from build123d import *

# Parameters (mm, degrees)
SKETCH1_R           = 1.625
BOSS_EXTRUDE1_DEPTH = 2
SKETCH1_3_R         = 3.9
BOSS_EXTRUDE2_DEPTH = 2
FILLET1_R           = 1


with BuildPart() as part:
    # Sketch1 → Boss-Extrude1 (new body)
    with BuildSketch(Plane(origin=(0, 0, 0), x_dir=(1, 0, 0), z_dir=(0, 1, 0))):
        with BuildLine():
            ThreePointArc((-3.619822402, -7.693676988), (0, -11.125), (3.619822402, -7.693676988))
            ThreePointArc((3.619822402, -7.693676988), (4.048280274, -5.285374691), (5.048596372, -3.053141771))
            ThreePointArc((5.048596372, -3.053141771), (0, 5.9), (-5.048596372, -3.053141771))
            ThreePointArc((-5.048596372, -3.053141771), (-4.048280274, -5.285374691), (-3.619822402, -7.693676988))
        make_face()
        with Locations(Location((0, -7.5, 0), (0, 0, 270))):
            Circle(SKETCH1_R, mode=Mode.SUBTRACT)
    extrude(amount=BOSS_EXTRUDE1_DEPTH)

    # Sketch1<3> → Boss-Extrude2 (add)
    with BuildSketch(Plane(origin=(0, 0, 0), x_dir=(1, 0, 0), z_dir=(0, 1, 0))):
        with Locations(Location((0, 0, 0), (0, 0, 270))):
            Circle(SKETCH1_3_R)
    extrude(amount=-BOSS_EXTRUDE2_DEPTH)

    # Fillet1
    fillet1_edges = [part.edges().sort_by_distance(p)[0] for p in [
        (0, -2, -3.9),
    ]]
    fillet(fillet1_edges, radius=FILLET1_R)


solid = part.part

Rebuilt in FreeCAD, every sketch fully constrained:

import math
import FreeCAD as App
import Part
import Sketcher


def edges_at(feature, points):
    """Names of the edges that pass closest to the given points."""
    edges = feature.Shape.Edges
    near = lambda p: min(range(len(edges)), key=lambda i: edges[i].distToShape(Part.Vertex(*p))[0])
    return sorted({f"Edge{near(p) + 1}" for p in points})

doc = App.newDocument("Part")
body = doc.addObject("PartDesign::Body", "Body")

sketch1 = body.newObject("Sketcher::SketchObject", "Sketch")
sketch1.AttachmentSupport = (doc.getObject("XZ_Plane"), [""])
sketch1.MapMode = "FlatFace"
sketch1.addGeometry([
    Part.ArcOfCircle(Part.Circle(App.Vector(0, 7.5, 0), App.Vector(0, 0, 1), 3.625), math.radians(3.062665), math.radians(176.937335)),
    Part.ArcOfCircle(Part.Circle(App.Vector(13.605539, 8.227958, 0), App.Vector(0, 0, 1), 10), math.radians(-176.937335), math.radians(-148.836523)),
    Part.ArcOfCircle(Part.Circle(App.Vector(0, 0, 0), App.Vector(0, 0, 1), 5.9), math.radians(148.836523), math.radians(391.163477)),
    Part.ArcOfCircle(Part.Circle(App.Vector(-13.605539, 8.227958, 0), App.Vector(0, 0, 1), 10), math.radians(-31.163477), math.radians(-3.062665)),
    Part.Circle(App.Vector(0, 7.5, 0), App.Vector(0, 0, 1), 1.625),
], False)
sketch1.addConstraint([
    Sketcher.Constraint("Tangent", 0, 1, 1, 1),
    Sketcher.Constraint("Tangent", 1, 2, 2, 2),
    Sketcher.Constraint("Tangent", 2, 1, 3, 1),
    Sketcher.Constraint("Tangent", 3, 2, 0, 2),
    Sketcher.Constraint("Coincident", 2, 3, -1, 1),
    Sketcher.Constraint("Coincident", 4, 3, 0, 3),
    Sketcher.Constraint("Equal", 1, 3),
    Sketcher.Constraint("PointOnObject", 0, 3, -2),
    Sketcher.Constraint("Radius", 1, 10.0),
    Sketcher.Constraint("Radius", 2, 5.9),
    Sketcher.Constraint("Diameter", 4, 3.25),
    Sketcher.Constraint("Radius", 0, 3.625),
    Sketcher.Constraint("DistanceY", -1, 1, 0, 3, 7.5),
])
pad1 = body.newObject("PartDesign::Pad", "Pad")
pad1.Profile = sketch1
pad1.Length = 2
pad1.Reversed = True

sketch2 = body.newObject("Sketcher::SketchObject", "Sketch001")
sketch2.AttachmentSupport = (doc.getObject("XZ_Plane"), [""])
sketch2.MapMode = "FlatFace"
sketch2.addGeometry(Part.Circle(App.Vector(0, 0, 0), App.Vector(0, 0, 1), 3.9), False)
sketch2.addConstraint([
    Sketcher.Constraint("Coincident", 0, 3, -1, 1),
    Sketcher.Constraint("Diameter", 0, 7.8),
])
pad2 = body.newObject("PartDesign::Pad", "Pad001")
pad2.Profile = sketch2
pad2.Length = 2
doc.recompute()

fillet = body.newObject("PartDesign::Fillet", "Fillet")
fillet.Base = (pad2, edges_at(pad2, [(0, -2, -3.9)]))
fillet.Radius = 1

doc.recompute()
